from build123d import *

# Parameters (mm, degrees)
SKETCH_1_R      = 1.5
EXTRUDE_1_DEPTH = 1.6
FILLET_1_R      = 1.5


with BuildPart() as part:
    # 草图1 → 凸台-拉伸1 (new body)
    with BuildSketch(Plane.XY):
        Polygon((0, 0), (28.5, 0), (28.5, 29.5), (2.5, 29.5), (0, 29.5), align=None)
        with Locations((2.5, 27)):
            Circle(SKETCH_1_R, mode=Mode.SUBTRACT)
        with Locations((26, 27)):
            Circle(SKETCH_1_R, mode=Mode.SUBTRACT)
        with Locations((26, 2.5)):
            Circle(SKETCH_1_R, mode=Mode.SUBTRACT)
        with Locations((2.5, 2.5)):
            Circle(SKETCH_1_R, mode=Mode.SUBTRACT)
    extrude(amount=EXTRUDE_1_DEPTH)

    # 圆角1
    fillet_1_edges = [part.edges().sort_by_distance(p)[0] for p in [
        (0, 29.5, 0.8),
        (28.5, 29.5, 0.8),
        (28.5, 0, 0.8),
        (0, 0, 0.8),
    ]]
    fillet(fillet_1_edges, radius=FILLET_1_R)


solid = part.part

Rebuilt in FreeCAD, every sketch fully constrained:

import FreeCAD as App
import Part
import Sketcher
Q = App.Units.Quantity


def edges_at(feature, points):
    """Names of the edges that pass closest to the given points."""
    edges = feature.Shape.Edges
    near = lambda p: min(range(len(edges)), key=lambda i: edges[i].distToShape(Part.Vertex(*p))[0])
    return sorted({f"Edge{near(p) + 1}" for p in points})

doc = App.newDocument("Part")
body = doc.addObject("PartDesign::Body", "Body")

sketch1 = body.newObject("Sketcher::SketchObject", "Sketch")
sketch1.AttachmentSupport = (doc.getObject("XY_Plane"), [""])
sketch1.MapMode = "FlatFace"
sketch1.addGeometry(Part.LineSegment(App.Vector(0, 0, 0), App.Vector(28.5, 0, 0)), False)
sketch1.addGeometry(Part.LineSegment(App.Vector(28.5, 0, 0), App.Vector(28.5, 29.5, 0)), False)
sketch1.addGeometry(Part.LineSegment(App.Vector(28.5, 29.5, 0), App.Vector(0, 29.5, 0)), False)
sketch1.addGeometry(Part.LineSegment(App.Vector(0, 29.5, 0), App.Vector(0, 0, 0)), False)
sketch1.addGeometry(Part.Circle(App.Vector(2.5, 2.5, 0), App.Vector(0, 0, 1), 1.5), False)
sketch1.addGeometry(Part.Circle(App.Vector(26, 2.5, 0), App.Vector(0, 0, 1), 1.5), False)
sketch1.addGeometry(Part.Circle(App.Vector(2.5, 27, 0), App.Vector(0, 0, 1), 1.5), False)
sketch1.addGeometry(Part.Circle(App.Vector(26, 27, 0), App.Vector(0, 0, 1), 1.5), False)
sketch1.addConstraint(Sketcher.Constraint("Coincident", 0, 2, 1, 1))
sketch1.addConstraint(Sketcher.Constraint("Coincident", 1, 2, 2, 1))
sketch1.addConstraint(Sketcher.Constraint("Coincident", 2, 2, 3, 1))
sketch1.addConstraint(Sketcher.Constraint("Coincident", 3, 2, 0, 1))
sketch1.addConstraint(Sketcher.Constraint("Horizontal", 0))
sketch1.addConstraint(Sketcher.Constraint("Vertical", 1))
sketch1.addConstraint(Sketcher.Constraint("Horizontal", 2))
sketch1.addConstraint(Sketcher.Constraint("Vertical", 3))
sketch1.addConstraint(Sketcher.Constraint("Coincident", 3, 2, -1, 1))
sketch1.addConstraint(Sketcher.Constraint("Equal", 4, 5))
sketch1.addConstraint(Sketcher.Constraint("Equal", 5, 6))
sketch1.addConstraint(Sketcher.Constraint("Equal", 6, 7))
sketch1.addConstraint(Sketcher.Constraint("Horizontal", 4, 3, 5, 3))
sketch1.addConstraint(Sketcher.Constraint("Horizontal", 6, 3, 7, 3))
sketch1.addConstraint(Sketcher.Constraint("Vertical", 4, 3, 6, 3))
sketch1.addConstraint(Sketcher.Constraint("Vertical", 5, 3, 7, 3))
sketch1.addConstraint(Sketcher.Constraint("Diameter", 4, Q("3 mm")))
sketch1.addConstraint(Sketcher.Constraint("DistanceX", 0, 1, 0, 2, Q("28.5 mm")))
sketch1.addConstraint(Sketcher.Constraint("DistanceY", 1, 1, 1, 2, Q("29.5 mm")))
sketch1.addConstraint(Sketcher.Constraint("DistanceX", -1, 1, 5, 3, Q("26 mm")))
sketch1.addConstraint(Sketcher.Constraint("DistanceY", -1, 1, 6, 3, Q("27 mm")))
sketch1.addConstraint(Sketcher.Constraint("DistanceX", 4, 3, 0, 2, Q("26 mm")))
sketch1.addConstraint(Sketcher.Constraint("DistanceY", 5, 3, 1, 2, Q("27 mm")))
pad1 = body.newObject("PartDesign::Pad", "Pad")
pad1.Profile = sketch1
pad1.Length = 1.6
doc.recompute()

fillet = body.newObject("PartDesign::Fillet", "Fillet")
fillet.Base = (pad1, edges_at(pad1, [
    (0, 29.5, 0.8),
    (28.5, 29.5, 0.8),
    (28.5, 0, 0.8),
    (0, 0, 0.8),
]))
fillet.Radius = 1.5

doc.recompute()
